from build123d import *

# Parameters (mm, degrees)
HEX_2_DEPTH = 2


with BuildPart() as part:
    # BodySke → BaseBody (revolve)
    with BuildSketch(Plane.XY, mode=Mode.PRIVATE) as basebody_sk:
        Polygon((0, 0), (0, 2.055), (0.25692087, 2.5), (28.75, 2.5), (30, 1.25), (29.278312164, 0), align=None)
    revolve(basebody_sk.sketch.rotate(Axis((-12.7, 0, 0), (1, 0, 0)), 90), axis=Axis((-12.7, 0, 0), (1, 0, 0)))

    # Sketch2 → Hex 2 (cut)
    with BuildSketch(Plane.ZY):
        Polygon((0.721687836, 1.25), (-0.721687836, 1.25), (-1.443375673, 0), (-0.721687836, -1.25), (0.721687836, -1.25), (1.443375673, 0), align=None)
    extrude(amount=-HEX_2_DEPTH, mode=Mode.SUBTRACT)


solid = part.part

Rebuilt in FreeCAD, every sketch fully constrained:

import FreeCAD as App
import Part
import Sketcher
from FreeCAD import Vector
Q = App.Units.Quantity

doc = App.newDocument("Part")
body = doc.addObject("PartDesign::Body", "Body")

sketch1 = doc.addObject("Sketcher::SketchObject", "Sketch")
body.addObject(sketch1)
sketch1.AttachmentSupport = (doc.XY_Plane, [""])
sketch1.MapMode = "FlatFace"
sketch1.addGeometry(Part.LineSegment(Vector(0, 2.1, 0), Vector(0, 0, 0)), False)
sketch1.addGeometry(Part.LineSegment(Vector(0, 0, 0), Vector(29.3, 0, 0)), False)
sketch1.addGeometry(Part.LineSegment(Vector(29.3, 0, 0), Vector(30, 1.2, 0)), False)
sketch1.addGeometry(Part.LineSegment(Vector(30, 1.2, 0), Vector(28.8, 2.5, 0)), False)
sketch1.addGeometry(Part.LineSegment(Vector(28.8, 2.5, 0), Vector(0.3, 2.5, 0)), False)
sketch1.addGeometry(Part.LineSegment(Vector(0.3, 2.5, 0), Vector(0, 2.1, 0)), False)
sketch1.addConstraint(Sketcher.Constraint("Coincident", 0, 2, 1, 1))
sketch1.addConstraint(Sketcher.Constraint("Coincident", 1, 2, 2, 1))
sketch1.addConstraint(Sketcher.Constraint("Coincident", 2, 2, 3, 1))
sketch1.addConstraint(Sketcher.Constraint("Coincident", 3, 2, 4, 1))
sketch1.addConstraint(Sketcher.Constraint("Coincident", 4, 2, 5, 1))
sketch1.addConstraint(Sketcher.Constraint("Coincident", 5, 2, 0, 1))
sketch1.addConstraint(Sketcher.Constraint("Vertical", 0))
sketch1.addConstraint(Sketcher.Constraint("Horizontal", 1))
sketch1.addConstraint(Sketcher.Constraint("Horizontal", 4))
sketch1.addConstraint(Sketcher.Constraint("Coincident", 0, 2, -1, 1))
sketch1.addConstraint(Sketcher.Constraint("Parallel", 2, 5))
sketch1.addConstraint(Sketcher.Constraint("Angle", 2, Q("60 deg")))
sketch1.addConstraint(Sketcher.Constraint("Angle", 3, Q("135 deg")))
sketch1.addConstraint(Sketcher.Constraint("DistanceX", -1, 1, 2, 2, 30.0))
sketch1.addConstraint(Sketcher.Constraint("DistanceY", -1, 1, 3, 2, 2.5))
sketch1.addConstraint(Sketcher.Constraint("DistanceY", 0, 2, 0, 1, 2.055))
sketch1.addConstraint(Sketcher.Constraint("DistanceY", -1, 1, 2, 2, 1.25))
revolution = doc.addObject("PartDesign::Revolution", "Revolution")
body.addObject(revolution)
revolution.Profile = sketch1
revolution.ReferenceAxis = (sketch1, ["H_Axis"])
revolution.Angle = 360

sketch2 = doc.addObject("Sketcher::SketchObject", "Sketch001")
body.addObject(sketch2)
sketch2.AttachmentSupport = (doc.YZ_Plane, [""])
sketch2.MapMode = "FlatFace"
sketch2.addGeometry(Part.LineSegment(Vector(1.2, 0.7, 0), Vector(1.2, -0.7, 0)), False)
sketch2.addGeometry(Part.LineSegment(Vector(1.2, -0.7, 0), Vector(0, -1.4, 0)), False)
sketch2.addGeometry(Part.LineSegment(Vector(0, -1.4, 0), Vector(-1.2, -0.7, 0)), False)
sketch2.addGeometry(Part.LineSegment(Vector(-1.2, -0.7, 0), Vector(-1.2, 0.7, 0)), False)
sketch2.addGeometry(Part.LineSegment(Vector(-1.2, 0.7, 0), Vector(0, 1.4, 0)), False)
sketch2.addGeometry(Part.LineSegment(Vector(0, 1.4, 0), Vector(1.2, 0.7, 0)), False)
sketch2.addConstraint(Sketcher.Constraint("Coincident", 0, 2, 1, 1))
sketch2.addConstraint(Sketcher.Constraint("Coincident", 1, 2, 2, 1))
sketch2.addConstraint(Sketcher.Constraint("Coincident", 2, 2, 3, 1))
sketch2.addConstraint(Sketcher.Constraint("Coincident", 3, 2, 4, 1))
sketch2.addConstraint(Sketcher.Constraint("Coincident", 4, 2, 5, 1))
sketch2.addConstraint(Sketcher.Constraint("Coincident", 5, 2, 0, 1))
sketch2.addConstraint(Sketcher.Constraint("Vertical", 0))
sketch2.addConstraint(Sketcher.Constraint("Vertical", 3))
sketch2.addConstraint(Sketcher.Constraint("Symmetric", 0, 2, 3, 2, -1, 1))
sketch2.addConstraint(Sketcher.Constraint("Symmetric", 1, 2, 4, 2, -1, 1))
sketch2.addConstraint(Sketcher.Constraint("PointOnObject", 1, 2, -2))
sketch2.addConstraint(Sketcher.Constraint("Parallel", 2, 5))
sketch2.addConstraint(Sketcher.Constraint("Horizontal", 0, 2, 2, 2))
sketch2.addConstraint(Sketcher.Constraint("Angle", 1, Q("-150 deg")))
sketch2.addConstraint(Sketcher.Constraint("DistanceX", 2, 2, 0, 2, 2.5))
sketch2.addConstraint(Sketcher.Constraint("DistanceY", 0, 2, 0, 1, 1.443376))
pocket1 = doc.addObject("PartDesign::Pocket", "Pocket")
body.addObject(pocket1)
pocket1.Profile = sketch2
pocket1.Length = 2
pocket1.Reversed = True

doc.recompute()
